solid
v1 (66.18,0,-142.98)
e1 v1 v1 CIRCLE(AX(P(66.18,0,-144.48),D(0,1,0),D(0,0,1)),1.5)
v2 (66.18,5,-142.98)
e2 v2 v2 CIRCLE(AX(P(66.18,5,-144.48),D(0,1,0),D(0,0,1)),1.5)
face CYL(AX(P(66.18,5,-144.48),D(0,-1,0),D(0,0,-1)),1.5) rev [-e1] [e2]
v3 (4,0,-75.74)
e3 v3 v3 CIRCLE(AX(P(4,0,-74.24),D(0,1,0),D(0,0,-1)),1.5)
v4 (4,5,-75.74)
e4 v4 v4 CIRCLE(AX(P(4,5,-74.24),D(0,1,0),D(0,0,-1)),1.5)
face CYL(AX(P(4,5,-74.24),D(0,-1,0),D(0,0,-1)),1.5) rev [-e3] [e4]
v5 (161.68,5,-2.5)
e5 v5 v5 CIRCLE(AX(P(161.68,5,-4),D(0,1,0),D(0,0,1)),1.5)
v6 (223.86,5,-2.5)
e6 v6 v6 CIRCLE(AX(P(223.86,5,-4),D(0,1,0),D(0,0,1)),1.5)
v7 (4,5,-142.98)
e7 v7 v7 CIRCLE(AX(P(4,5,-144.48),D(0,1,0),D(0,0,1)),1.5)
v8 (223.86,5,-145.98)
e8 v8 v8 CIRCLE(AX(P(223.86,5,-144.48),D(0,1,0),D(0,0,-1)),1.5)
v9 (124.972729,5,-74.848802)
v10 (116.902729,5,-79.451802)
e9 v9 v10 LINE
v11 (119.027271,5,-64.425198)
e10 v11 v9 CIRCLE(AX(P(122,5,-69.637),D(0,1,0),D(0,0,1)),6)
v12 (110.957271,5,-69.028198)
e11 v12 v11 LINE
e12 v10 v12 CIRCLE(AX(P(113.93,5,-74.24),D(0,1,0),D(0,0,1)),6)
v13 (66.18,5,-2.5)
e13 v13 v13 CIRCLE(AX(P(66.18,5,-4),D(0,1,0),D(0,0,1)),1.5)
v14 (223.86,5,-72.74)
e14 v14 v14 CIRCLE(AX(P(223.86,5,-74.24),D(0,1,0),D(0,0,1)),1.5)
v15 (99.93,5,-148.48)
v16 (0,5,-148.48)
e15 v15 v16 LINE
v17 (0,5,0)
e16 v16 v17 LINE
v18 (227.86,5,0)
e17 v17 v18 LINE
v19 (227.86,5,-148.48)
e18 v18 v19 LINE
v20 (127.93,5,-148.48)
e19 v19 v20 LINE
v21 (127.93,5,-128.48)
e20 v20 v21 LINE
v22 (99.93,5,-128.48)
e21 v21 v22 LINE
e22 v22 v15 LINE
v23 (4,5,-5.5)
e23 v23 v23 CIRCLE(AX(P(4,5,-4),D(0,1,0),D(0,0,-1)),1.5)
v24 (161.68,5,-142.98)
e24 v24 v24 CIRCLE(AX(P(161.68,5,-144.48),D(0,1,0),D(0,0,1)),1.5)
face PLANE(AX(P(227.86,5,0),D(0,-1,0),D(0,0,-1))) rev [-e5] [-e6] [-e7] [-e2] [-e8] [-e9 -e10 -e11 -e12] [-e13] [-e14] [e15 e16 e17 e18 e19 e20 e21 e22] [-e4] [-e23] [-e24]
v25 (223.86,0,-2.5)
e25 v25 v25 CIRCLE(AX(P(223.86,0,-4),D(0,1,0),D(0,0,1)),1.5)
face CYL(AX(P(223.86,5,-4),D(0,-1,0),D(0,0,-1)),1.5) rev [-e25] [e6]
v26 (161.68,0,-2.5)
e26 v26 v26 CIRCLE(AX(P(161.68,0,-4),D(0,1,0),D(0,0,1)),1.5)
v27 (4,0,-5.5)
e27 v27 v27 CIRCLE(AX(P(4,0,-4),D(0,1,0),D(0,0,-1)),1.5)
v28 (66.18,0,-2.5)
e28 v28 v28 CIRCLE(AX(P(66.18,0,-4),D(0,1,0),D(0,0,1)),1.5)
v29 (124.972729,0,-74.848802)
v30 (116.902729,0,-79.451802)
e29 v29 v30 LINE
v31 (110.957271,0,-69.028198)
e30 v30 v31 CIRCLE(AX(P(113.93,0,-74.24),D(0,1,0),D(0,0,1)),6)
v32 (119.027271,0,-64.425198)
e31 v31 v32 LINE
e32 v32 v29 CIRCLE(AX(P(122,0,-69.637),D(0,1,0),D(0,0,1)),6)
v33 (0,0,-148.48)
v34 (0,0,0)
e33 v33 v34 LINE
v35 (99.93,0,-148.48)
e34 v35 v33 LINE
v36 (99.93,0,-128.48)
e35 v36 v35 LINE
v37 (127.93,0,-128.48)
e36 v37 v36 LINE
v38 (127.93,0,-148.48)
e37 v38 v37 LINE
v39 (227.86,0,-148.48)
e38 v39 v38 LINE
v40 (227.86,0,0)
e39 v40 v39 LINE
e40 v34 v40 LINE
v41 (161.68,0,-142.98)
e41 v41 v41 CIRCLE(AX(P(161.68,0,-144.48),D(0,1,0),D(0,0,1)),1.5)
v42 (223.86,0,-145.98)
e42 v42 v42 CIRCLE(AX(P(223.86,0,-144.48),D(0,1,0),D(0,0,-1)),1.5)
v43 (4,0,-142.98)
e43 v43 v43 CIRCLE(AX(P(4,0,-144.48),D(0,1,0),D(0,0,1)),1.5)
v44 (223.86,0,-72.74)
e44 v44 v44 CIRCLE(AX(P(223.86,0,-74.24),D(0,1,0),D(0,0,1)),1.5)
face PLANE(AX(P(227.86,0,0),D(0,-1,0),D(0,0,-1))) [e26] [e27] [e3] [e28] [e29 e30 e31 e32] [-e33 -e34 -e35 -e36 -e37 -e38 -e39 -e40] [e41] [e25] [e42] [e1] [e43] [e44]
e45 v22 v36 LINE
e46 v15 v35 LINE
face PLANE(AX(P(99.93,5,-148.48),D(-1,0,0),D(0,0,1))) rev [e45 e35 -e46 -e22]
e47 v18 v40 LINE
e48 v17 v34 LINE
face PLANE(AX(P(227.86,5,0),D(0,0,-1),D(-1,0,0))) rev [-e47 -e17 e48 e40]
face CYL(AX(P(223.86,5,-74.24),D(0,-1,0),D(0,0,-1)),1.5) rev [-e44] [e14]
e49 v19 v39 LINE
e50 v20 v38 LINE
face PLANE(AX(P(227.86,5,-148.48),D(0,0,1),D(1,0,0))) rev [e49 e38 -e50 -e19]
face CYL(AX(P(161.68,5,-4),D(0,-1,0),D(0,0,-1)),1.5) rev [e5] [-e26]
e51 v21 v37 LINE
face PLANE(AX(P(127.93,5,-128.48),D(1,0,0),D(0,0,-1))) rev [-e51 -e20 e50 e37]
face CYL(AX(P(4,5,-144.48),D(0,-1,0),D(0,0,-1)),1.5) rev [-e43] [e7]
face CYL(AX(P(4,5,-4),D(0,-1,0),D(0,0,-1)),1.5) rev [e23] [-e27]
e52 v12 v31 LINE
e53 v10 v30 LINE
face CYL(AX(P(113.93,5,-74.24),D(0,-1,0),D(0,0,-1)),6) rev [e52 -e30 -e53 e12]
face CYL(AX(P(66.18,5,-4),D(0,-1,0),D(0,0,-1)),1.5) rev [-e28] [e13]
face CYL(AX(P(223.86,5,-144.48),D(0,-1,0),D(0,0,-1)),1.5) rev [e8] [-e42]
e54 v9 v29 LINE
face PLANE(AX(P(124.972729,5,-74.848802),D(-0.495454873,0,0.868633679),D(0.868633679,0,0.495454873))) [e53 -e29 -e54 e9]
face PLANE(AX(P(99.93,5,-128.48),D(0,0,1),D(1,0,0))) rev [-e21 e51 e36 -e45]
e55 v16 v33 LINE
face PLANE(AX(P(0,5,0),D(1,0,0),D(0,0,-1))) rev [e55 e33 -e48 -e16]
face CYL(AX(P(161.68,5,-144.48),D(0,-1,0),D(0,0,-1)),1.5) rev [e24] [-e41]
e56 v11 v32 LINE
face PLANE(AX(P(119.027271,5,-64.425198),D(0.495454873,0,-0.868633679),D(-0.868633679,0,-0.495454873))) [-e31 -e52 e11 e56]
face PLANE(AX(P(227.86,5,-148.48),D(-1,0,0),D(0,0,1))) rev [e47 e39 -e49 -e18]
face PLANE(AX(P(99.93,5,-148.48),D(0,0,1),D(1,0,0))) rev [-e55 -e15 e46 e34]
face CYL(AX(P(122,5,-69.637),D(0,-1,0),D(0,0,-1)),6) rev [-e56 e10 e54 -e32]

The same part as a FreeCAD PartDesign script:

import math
import FreeCAD as App
import Part
import Sketcher

V = App.Vector
Q = App.Units.Quantity

doc = App.newDocument("Part")
body = doc.addObject("PartDesign::Body", "Body")

# Sketch on XZ plane
sketch1 = body.newObject("Sketcher::SketchObject", "Sketch")
sketch1.AttachmentSupport = (doc.getObject("XZ_Plane"), [""])
sketch1.MapMode = "FlatFace"
sketch1.addGeometry(Part.LineSegment(V(0, -148.5, 0), V(0, 0, 0)), False)
sketch1.addGeometry(Part.LineSegment(V(0, 0, 0), V(227.9, 0, 0)), False)
sketch1.addGeometry(Part.LineSegment(V(227.9, 0, 0), V(227.9, -148.5, 0)), False)
sketch1.addGeometry(Part.LineSegment(V(227.9, -148.5, 0), V(127.9, -148.5, 0)), False)
sketch1.addGeometry(Part.LineSegment(V(127.9, -148.5, 0), V(127.9, -128.5, 0)), False)
sketch1.addGeometry(Part.LineSegment(V(127.9, -128.5, 0), V(99.9, -128.5, 0)), False)
sketch1.addGeometry(Part.LineSegment(V(99.9, -128.5, 0), V(99.9, -148.5, 0)), False)
sketch1.addGeometry(Part.LineSegment(V(99.9, -148.5, 0), V(0, -148.5, 0)), False)
sketch1.addGeometry(Part.Circle(V(223.9, -4, 0), V(0, 0, 1), 1.5), False)
sketch1.addGeometry(Part.Circle(V(161.7, -4, 0), V(0, 0, 1), 1.5), False)
sketch1.addGeometry(Part.ArcOfCircle(Part.Circle(V(122, -69.6, 0), V(0, 0, 1), 6), math.radians(-60), math.radians(120)), False)
sketch1.addGeometry(Part.LineSegment(V(119, -64.4, 0), V(111, -69, 0)), False)
sketch1.addGeometry(Part.ArcOfCircle(Part.Circle(V(113.9, -74.2, 0), V(0, 0, 1), 6), math.radians(120), math.radians(300)), False)
sketch1.addGeometry(Part.LineSegment(V(116.9, -79.5, 0), V(125, -74.8, 0)), False)
sketch1.addGeometry(Part.Circle(V(66.2, -4, 0), V(0, 0, 1), 1.5), False)
sketch1.addGeometry(Part.Circle(V(4, -4, 0), V(0, 0, 1), 1.5), False)
sketch1.addGeometry(Part.Circle(V(223.9, -74.2, 0), V(0, 0, 1), 1.5), False)
sketch1.addGeometry(Part.Circle(V(223.9, -144.5, 0), V(0, 0, 1), 1.5), False)
sketch1.addGeometry(Part.Circle(V(161.7, -144.5, 0), V(0, 0, 1), 1.5), False)
sketch1.addGeometry(Part.Circle(V(4, -74.2, 0), V(0, 0, 1), 1.5), False)
sketch1.addGeometry(Part.Circle(V(66.2, -144.5, 0), V(0, 0, 1), 1.5), False)
sketch1.addGeometry(Part.Circle(V(4, -144.5, 0), V(0, 0, 1), 1.5), False)
sketch1.addConstraint(Sketcher.Constraint("Coincident", 0, 2, 1, 1))
sketch1.addConstraint(Sketcher.Constraint("Coincident", 1, 2, 2, 1))
sketch1.addConstraint(Sketcher.Constraint("Coincident", 2, 2, 3, 1))
sketch1.addConstraint(Sketcher.Constraint("Coincident", 3, 2, 4, 1))
sketch1.addConstraint(Sketcher.Constraint("Coincident", 4, 2, 5, 1))
sketch1.addConstraint(Sketcher.Constraint("Coincident", 5, 2, 6, 1))
sketch1.addConstraint(Sketcher.Constraint("Coincident", 6, 2, 7, 1))
sketch1.addConstraint(Sketcher.Constraint("Coincident", 7, 2, 0, 1))
sketch1.addConstraint(Sketcher.Constraint("Tangent", 10, 2, 11, 1))
sketch1.addConstraint(Sketcher.Constraint("Tangent", 11, 2, 12, 1))
sketch1.addConstraint(Sketcher.Constraint("Tangent", 12, 2, 13, 1))
sketch1.addConstraint(Sketcher.Constraint("Tangent", 13, 2, 10, 1))
sketch1.addConstraint(Sketcher.Constraint("Vertical", 0))
sketch1.addConstraint(Sketcher.Constraint("Horizontal", 1))
sketch1.addConstraint(Sketcher.Constraint("Vertical", 2))
sketch1.addConstraint(Sketcher.Constraint("Horizontal", 3))
sketch1.addConstraint(Sketcher.Constraint("Vertical", 4))
sketch1.addConstraint(Sketcher.Constraint("Horizontal", 5))
sketch1.addConstraint(Sketcher.Constraint("Vertical", 6))
sketch1.addConstraint(Sketcher.Constraint("Horizontal", 7))
sketch1.addConstraint(Sketcher.Constraint("Coincident", 0, 2, -1, 1))
sketch1.addConstraint(Sketcher.Constraint("Equal", 8, 9))
sketch1.addConstraint(Sketcher.Constraint("Equal", 10, 12))
sketch1.addConstraint(Sketcher.Constraint("Equal", 9, 14))
sketch1.addConstraint(Sketcher.Constraint("Equal", 14, 15))
sketch1.addConstraint(Sketcher.Constraint("Equal", 15, 16))
sketch1.addConstraint(Sketcher.Constraint("Equal", 16, 17))
sketch1.addConstraint(Sketcher.Constraint("Equal", 17, 18))
sketch1.addConstraint(Sketcher.Constraint("Equal", 18, 19))
sketch1.addConstraint(Sketcher.Constraint("Equal", 19, 20))
sketch1.addConstraint(Sketcher.Constraint("Equal", 20, 21))
sketch1.addConstraint(Sketcher.Constraint("Horizontal", 8, 3, 9, 3))
sketch1.addConstraint(Sketcher.Constraint("Horizontal", 9, 3, 14, 3))
sketch1.addConstraint(Sketcher.Constraint("Horizontal", 14, 3, 15, 3))
sketch1.addConstraint(Sketcher.Constraint("Horizontal", 12, 3, 16, 3))
sketch1.addConstraint(Sketcher.Constraint("Horizontal", 17, 3, 18, 3))
sketch1.addConstraint(Sketcher.Constraint("Horizontal", 16, 3, 19, 3))
sketch1.addConstraint(Sketcher.Constraint("Horizontal", 18, 3, 20, 3))
sketch1.addConstraint(Sketcher.Constraint("Horizontal", 20, 3, 21, 3))
sketch1.addConstraint(Sketcher.Constraint("Horizontal", 3, 2, 6, 2))
sketch1.addConstraint(Sketcher.Constraint("Vertical", 8, 3, 16, 3))
sketch1.addConstraint(Sketcher.Constraint("Vertical", 16, 3, 17, 3))
sketch1.addConstraint(Sketcher.Constraint("Vertical", 9, 3, 18, 3))
sketch1.addConstraint(Sketcher.Constraint("Vertical", 15, 3, 19, 3))
sketch1.addConstraint(Sketcher.Constraint("Vertical", 14, 3, 20, 3))
sketch1.addConstraint(Sketcher.Constraint("Vertical", 19, 3, 21, 3))
sketch1.addConstraint(Sketcher.Constraint("Equal", 3, 7))
sketch1.addConstraint(Sketcher.Constraint("Diameter", 8, Q("3 mm")))
sketch1.addConstraint(Sketcher.Constraint("Radius", 10, Q("6 mm")))
sketch1.addConstraint(Sketcher.Constraint("DistanceX", 5, 2, 5, 1, Q("28 mm")))
sketch1.addConstraint(Sketcher.Constraint("DistanceY", 4, 1, 4, 2, Q("20 mm")))
sketch1.addConstraint(Sketcher.Constraint("DistanceY", 8, 3, -1, 1, Q("4 mm")))
sketch1.addConstraint(Sketcher.Constraint("DistanceX", -1, 1, 10, 3, Q("122 mm")))
sketch1.addConstraint(Sketcher.Constraint("DistanceX", -1, 1, 15, 3, Q("4 mm")))
sketch1.addConstraint(Sketcher.Constraint("DistanceX", 8, 3, 1, 2, Q("4 mm")))
sketch1.addConstraint(Sketcher.Constraint("DistanceY", 2, 2, 17, 3, Q("4 mm")))
sketch1.addConstraint(Sketcher.Constraint("DistanceX", 12, 3, 3, 2, Q("14 mm")))
sketch1.addConstraint(Sketcher.Constraint("DistanceX", 1, 1, 1, 2, Q("227.86 mm")))
sketch1.addConstraint(Sketcher.Constraint("DistanceY", 0, 1, 0, 2, Q("148.48 mm")))
sketch1.addConstraint(Sketcher.Constraint("DistanceX", 14, 3, 9, 3, Q("95.5 mm")))
sketch1.addConstraint(Sketcher.Constraint("DistanceX", -1, 1, 9, 3, Q("161.68 mm")))
sketch1.addConstraint(Sketcher.Constraint("DistanceY", 12, 3, -1, 1, Q("74.24 mm")))
sketch1.addConstraint(Sketcher.Constraint("DistanceY", 10, 3, -1, 1, Q("69.637 mm")))
pad1 = body.newObject("PartDesign::Pad", "Pad")
pad1.Profile = sketch1
pad1.Length = 5
pad1.Reversed = True

doc.recompute()
